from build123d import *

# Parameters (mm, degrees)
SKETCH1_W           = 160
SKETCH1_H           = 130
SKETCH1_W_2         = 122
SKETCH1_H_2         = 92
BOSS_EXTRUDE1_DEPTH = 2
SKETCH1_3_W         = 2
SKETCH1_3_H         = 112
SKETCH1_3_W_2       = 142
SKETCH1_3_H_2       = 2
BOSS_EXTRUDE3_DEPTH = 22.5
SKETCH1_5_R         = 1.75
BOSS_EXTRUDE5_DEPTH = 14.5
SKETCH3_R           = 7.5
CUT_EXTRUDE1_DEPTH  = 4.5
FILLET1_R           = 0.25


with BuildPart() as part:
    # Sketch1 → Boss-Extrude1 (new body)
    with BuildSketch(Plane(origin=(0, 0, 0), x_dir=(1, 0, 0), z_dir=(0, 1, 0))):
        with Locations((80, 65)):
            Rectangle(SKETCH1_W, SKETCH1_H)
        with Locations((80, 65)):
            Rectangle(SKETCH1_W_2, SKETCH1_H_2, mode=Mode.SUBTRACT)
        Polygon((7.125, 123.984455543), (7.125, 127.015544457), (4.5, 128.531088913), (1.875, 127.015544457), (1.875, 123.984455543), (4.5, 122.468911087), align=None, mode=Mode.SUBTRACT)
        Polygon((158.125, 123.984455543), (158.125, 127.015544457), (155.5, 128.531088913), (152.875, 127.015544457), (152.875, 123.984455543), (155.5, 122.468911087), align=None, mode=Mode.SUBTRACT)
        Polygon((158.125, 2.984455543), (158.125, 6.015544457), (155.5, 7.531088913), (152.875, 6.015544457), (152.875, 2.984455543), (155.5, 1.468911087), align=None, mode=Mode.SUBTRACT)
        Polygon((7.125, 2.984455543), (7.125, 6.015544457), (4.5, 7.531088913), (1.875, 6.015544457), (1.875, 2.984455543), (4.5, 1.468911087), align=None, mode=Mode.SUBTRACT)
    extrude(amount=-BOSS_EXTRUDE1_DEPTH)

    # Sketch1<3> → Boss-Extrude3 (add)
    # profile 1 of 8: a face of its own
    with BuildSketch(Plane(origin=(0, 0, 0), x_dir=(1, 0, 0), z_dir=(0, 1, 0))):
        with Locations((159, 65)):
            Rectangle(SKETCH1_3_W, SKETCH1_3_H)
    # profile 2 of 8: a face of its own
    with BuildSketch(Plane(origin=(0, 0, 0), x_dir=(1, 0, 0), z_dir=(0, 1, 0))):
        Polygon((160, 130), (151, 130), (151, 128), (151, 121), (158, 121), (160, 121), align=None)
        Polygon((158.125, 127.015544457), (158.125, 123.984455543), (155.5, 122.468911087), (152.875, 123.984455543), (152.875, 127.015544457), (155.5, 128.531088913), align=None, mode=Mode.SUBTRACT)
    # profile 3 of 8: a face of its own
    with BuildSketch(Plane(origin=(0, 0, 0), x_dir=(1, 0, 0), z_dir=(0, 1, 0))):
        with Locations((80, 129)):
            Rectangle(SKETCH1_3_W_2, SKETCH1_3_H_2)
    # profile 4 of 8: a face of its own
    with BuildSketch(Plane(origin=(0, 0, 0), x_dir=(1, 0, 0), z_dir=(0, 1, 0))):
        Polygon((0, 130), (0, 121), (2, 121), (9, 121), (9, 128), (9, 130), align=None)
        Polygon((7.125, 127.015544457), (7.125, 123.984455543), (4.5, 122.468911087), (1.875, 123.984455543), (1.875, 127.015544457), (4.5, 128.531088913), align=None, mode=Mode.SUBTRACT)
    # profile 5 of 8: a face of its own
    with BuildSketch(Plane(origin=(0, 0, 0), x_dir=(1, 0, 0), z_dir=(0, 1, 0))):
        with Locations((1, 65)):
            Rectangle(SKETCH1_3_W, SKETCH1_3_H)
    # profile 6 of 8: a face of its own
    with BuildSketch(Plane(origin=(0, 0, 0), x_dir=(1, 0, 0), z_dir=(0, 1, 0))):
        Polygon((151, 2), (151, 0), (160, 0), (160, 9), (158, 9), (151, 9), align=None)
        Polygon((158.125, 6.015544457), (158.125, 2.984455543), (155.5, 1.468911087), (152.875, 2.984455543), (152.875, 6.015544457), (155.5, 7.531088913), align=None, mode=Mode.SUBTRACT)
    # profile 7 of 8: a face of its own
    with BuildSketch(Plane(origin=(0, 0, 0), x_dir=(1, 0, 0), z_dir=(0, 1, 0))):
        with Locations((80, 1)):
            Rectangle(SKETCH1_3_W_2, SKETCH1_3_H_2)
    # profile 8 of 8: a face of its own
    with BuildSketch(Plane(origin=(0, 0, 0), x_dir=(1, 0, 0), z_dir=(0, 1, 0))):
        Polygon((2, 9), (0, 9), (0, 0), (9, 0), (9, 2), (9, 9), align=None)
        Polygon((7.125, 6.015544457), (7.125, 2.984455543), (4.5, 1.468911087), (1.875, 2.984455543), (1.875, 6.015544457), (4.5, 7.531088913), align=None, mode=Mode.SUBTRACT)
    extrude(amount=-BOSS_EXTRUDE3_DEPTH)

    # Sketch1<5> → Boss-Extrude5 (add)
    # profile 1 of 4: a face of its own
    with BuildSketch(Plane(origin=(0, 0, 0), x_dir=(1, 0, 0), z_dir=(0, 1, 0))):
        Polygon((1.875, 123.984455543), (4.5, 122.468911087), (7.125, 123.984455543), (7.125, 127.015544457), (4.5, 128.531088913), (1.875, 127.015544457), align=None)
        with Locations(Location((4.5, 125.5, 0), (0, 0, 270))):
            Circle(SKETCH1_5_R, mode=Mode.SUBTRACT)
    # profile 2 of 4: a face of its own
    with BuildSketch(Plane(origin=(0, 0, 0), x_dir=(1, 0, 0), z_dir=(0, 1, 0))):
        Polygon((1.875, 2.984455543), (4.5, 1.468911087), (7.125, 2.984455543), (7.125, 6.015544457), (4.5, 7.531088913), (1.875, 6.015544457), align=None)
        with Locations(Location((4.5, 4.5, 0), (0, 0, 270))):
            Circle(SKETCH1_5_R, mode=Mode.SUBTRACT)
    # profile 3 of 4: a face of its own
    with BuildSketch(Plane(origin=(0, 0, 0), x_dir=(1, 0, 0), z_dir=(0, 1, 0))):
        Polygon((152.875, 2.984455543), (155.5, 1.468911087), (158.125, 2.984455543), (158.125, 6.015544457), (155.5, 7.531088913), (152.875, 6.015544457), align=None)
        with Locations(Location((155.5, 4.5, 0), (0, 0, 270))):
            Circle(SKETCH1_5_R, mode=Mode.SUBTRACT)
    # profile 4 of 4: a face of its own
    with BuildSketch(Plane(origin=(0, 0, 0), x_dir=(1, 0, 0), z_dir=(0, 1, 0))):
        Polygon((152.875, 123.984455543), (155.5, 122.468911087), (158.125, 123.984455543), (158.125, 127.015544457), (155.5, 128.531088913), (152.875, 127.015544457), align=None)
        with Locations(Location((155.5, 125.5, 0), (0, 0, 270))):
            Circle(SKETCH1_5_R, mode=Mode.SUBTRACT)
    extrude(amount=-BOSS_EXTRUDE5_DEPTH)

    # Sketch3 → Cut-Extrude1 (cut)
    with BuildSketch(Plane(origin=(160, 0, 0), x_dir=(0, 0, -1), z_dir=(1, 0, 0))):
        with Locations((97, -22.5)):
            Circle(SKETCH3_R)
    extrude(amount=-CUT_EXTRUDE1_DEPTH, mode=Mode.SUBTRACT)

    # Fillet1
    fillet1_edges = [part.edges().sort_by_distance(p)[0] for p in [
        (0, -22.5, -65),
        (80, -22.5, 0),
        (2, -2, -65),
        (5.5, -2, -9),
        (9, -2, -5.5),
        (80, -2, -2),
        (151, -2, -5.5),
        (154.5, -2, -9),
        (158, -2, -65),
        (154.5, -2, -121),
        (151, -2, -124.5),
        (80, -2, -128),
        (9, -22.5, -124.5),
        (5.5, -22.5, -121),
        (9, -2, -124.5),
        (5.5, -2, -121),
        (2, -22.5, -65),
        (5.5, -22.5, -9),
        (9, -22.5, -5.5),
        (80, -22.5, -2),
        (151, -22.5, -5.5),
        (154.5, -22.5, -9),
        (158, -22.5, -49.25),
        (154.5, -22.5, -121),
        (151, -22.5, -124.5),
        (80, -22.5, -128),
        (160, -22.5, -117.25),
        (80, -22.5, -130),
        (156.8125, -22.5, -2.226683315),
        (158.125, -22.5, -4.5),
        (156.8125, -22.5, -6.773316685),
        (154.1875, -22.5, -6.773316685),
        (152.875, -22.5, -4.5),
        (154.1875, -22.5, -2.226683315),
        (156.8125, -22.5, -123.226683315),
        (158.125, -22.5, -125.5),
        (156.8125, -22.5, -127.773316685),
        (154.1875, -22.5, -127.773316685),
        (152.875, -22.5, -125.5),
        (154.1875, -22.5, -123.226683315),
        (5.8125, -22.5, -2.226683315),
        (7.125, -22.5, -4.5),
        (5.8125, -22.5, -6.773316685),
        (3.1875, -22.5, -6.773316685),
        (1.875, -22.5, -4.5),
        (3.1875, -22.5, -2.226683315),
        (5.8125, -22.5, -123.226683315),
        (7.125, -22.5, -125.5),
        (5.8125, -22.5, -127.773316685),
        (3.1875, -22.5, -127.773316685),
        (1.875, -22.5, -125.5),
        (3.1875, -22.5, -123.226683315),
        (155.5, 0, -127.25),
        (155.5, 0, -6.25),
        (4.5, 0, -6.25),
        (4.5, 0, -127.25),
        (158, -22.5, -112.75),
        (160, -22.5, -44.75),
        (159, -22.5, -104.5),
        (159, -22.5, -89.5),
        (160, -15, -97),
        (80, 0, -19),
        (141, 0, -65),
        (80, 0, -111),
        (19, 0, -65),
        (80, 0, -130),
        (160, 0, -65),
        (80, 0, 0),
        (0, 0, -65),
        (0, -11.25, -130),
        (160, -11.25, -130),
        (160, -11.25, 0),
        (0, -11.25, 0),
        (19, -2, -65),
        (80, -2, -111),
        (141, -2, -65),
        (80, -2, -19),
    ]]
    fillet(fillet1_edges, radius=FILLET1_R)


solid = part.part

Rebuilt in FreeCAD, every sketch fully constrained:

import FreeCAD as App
import Part
import Sketcher
Q = App.Units.Quantity


def edges_at(feature, points):
    """Names of the edges that pass closest to the given points."""
    edges = feature.Shape.Edges
    near = lambda p: min(range(len(edges)), key=lambda i: edges[i].distToShape(Part.Vertex(*p))[0])
    return sorted({f"Edge{near(p) + 1}" for p in points})


def add_polygon(sketch, points):
    """Adds a closed chain of lines whose ends are joined by coincident constraints."""
    first, n = sketch.GeometryCount, len(points)
    for a, b in zip(points, points[1:] + points[:1]):
        sketch.addGeometry(Part.LineSegment(App.Vector(*a, 0), App.Vector(*b, 0)), False)
    for i in range(n):
        sketch.addConstraint(Sketcher.Constraint("Coincident", first + i, 2, first + (i + 1) % n, 1))

doc = App.newDocument("Part")
body = doc.addObject("PartDesign::Body", "Body")

sketch1 = body.newObject("Sketcher::SketchObject", "Sketch")
sketch1.AttachmentSupport = (doc.getObject("XZ_Plane"), [""])
sketch1.MapMode = "FlatFace"
add_polygon(sketch1, [(0, -130), (0, 0), (160, 0), (160, -130)])
add_polygon(sketch1, [(7.1, -6), (7.1, -3), (4.5, -1.5), (1.9, -3), (1.9, -6), (4.5, -7.5)])
add_polygon(sketch1, [(158.1, -6), (158.1, -3), (155.5, -1.5), (152.9, -3), (152.9, -6), (155.5, -7.5)])
add_polygon(sketch1, [(7.1, -127), (7.1, -124), (4.5, -122.5), (1.9, -124), (1.9, -127), (4.5, -128.5)])
add_polygon(sketch1, [(141, -19), (19, -19), (19, -111), (141, -111)])
add_polygon(sketch1, [(158.1, -127), (158.1, -124), (155.5, -122.5), (152.9, -124), (152.9, -127), (155.5, -128.5)])
sketch1.addConstraint([
    Sketcher.Constraint("Vertical", 0),
    Sketcher.Constraint("Horizontal", 1),
    Sketcher.Constraint("Vertical", 2),
    Sketcher.Constraint("Horizontal", 3),
    Sketcher.Constraint("Vertical", 4),
    Sketcher.Constraint("Vertical", 7),
    Sketcher.Constraint("Vertical", 10),
    Sketcher.Constraint("Vertical", 13),
    Sketcher.Constraint("Vertical", 16),
    Sketcher.Constraint("Vertical", 19),
    Sketcher.Constraint("Horizontal", 22),
    Sketcher.Constraint("Vertical", 23),
    Sketcher.Constraint("Horizontal", 24),
    Sketcher.Constraint("Vertical", 25),
    Sketcher.Constraint("Vertical", 26),
    Sketcher.Constraint("Vertical", 29),
    Sketcher.Constraint("Coincident", 0, 2, -1, 1),
    Sketcher.Constraint("Parallel", 5, 8),
    Sketcher.Constraint("Parallel", 6, 9),
    Sketcher.Constraint("Parallel", 8, 11),
    Sketcher.Constraint("Parallel", 9, 12),
    Sketcher.Constraint("Parallel", 11, 14),
    Sketcher.Constraint("Parallel", 12, 15),
    Sketcher.Constraint("Parallel", 14, 17),
    Sketcher.Constraint("Parallel", 15, 18),
    Sketcher.Constraint("Parallel", 17, 20),
    Sketcher.Constraint("Parallel", 18, 21),
    Sketcher.Constraint("Parallel", 20, 27),
    Sketcher.Constraint("Parallel", 21, 28),
    Sketcher.Constraint("Parallel", 27, 30),
    Sketcher.Constraint("Parallel", 28, 31),
    Sketcher.Constraint("Horizontal", 4, 2, 6, 2),
    Sketcher.Constraint("Horizontal", 7, 2, 9, 2),
    Sketcher.Constraint("Horizontal", 6, 2, 10, 2),
    Sketcher.Constraint("Horizontal", 5, 2, 11, 2),
    Sketcher.Constraint("Horizontal", 10, 2, 12, 2),
    Sketcher.Constraint("Horizontal", 9, 2, 13, 2),
    Sketcher.Constraint("Horizontal", 8, 2, 14, 2),
    Sketcher.Constraint("Horizontal", 16, 2, 18, 2),
    Sketcher.Constraint("Horizontal", 19, 2, 21, 2),
    Sketcher.Constraint("Horizontal", 18, 2, 26, 2),
    Sketcher.Constraint("Horizontal", 17, 2, 27, 2),
    Sketcher.Constraint("Horizontal", 26, 2, 28, 2),
    Sketcher.Constraint("Horizontal", 21, 2, 29, 2),
    Sketcher.Constraint("Horizontal", 20, 2, 30, 2),
    Sketcher.Constraint("Vertical", 5, 2, 8, 2),
    Sketcher.Constraint("Vertical", 9, 2, 16, 2),
    Sketcher.Constraint("Vertical", 8, 2, 17, 2),
    Sketcher.Constraint("Vertical", 15, 2, 26, 2),
    Sketcher.Constraint("Equal", 13, 16),
    Sketcher.Constraint("DistanceX", 1, 1, 1, 2, 160.0),
    Sketcher.Constraint("DistanceX", 22, 2, 22, 1, 122.0),
    Sketcher.Constraint("DistanceY", 0, 1, 0, 2, 130.0),
    Sketcher.Constraint("DistanceY", 23, 2, 23, 1, 92.0),
    Sketcher.Constraint("Angle", 5, Q("150 deg")),
    Sketcher.Constraint("DistanceX", -1, 1, 22, 2, 19.0),
    Sketcher.Constraint("DistanceY", 22, 2, -1, 1, 19.0),
    Sketcher.Constraint("DistanceX", 4, 2, 10, 2, 151.0),
    Sketcher.Constraint("DistanceY", 16, 2, 4, 2, 121.0),
    Sketcher.Constraint("DistanceX", -1, 1, 5, 2, 4.5),
    Sketcher.Constraint("DistanceX", 6, 2, 4, 2, 5.25),
    Sketcher.Constraint("DistanceY", 4, 1, 4, 2, 3.031089),
    Sketcher.Constraint("DistanceY", 5, 2, -1, 1, 1.468911),
])
pad1 = body.newObject("PartDesign::Pad", "Pad")
pad1.Profile = sketch1
pad1.Length = 2

sketch2 = body.newObject("Sketcher::SketchObject", "Sketch001")
sketch2.AttachmentSupport = (doc.getObject("XZ_Plane"), [""])
sketch2.MapMode = "FlatFace"
add_polygon(sketch2, [(160, -130), (0, -130), (0, 0), (160, 0)])
add_polygon(sketch2, [(158, -121), (158, -9), (151, -9), (151, -2), (9, -2), (9, -9), (2, -9), (2, -121), (9, -121), (9, -128), (151, -128), (151, -121)])
add_polygon(sketch2, [(158.1, -6), (158.1, -3), (155.5, -1.5), (152.9, -3), (152.9, -6), (155.5, -7.5)])
add_polygon(sketch2, [(158.1, -127), (158.1, -124), (155.5, -122.5), (152.9, -124), (152.9, -127), (155.5, -128.5)])
add_polygon(sketch2, [(7.1, -6), (7.1, -3), (4.5, -1.5), (1.9, -3), (1.9, -6), (4.5, -7.5)])
add_polygon(sketch2, [(7.1, -127), (7.1, -124), (4.5, -122.5), (1.9, -124), (1.9, -127), (4.5, -128.5)])
sketch2.addConstraint([
    Sketcher.Constraint("Horizontal", 0),
    Sketcher.Constraint("Vertical", 1),
    Sketcher.Constraint("Horizontal", 2),
    Sketcher.Constraint("Vertical", 3),
    Sketcher.Constraint("Vertical", 4),
    Sketcher.Constraint("Horizontal", 5),
    Sketcher.Constraint("Vertical", 6),
    Sketcher.Constraint("Horizontal", 7),
    Sketcher.Constraint("Vertical", 8),
    Sketcher.Constraint("Horizontal", 9),
    Sketcher.Constraint("Vertical", 10),
    Sketcher.Constraint("Horizontal", 11),
    Sketcher.Constraint("Vertical", 12),
    Sketcher.Constraint("Horizontal", 13),
    Sketcher.Constraint("Vertical", 14),
    Sketcher.Constraint("Horizontal", 15),
    Sketcher.Constraint("Vertical", 16),
    Sketcher.Constraint("Vertical", 19),
    Sketcher.Constraint("Vertical", 22),
    Sketcher.Constraint("Vertical", 25),
    Sketcher.Constraint("Vertical", 28),
    Sketcher.Constraint("Vertical", 31),
    Sketcher.Constraint("Vertical", 34),
    Sketcher.Constraint("Vertical", 37),
    Sketcher.Constraint("Coincident", 1, 2, -1, 1),
    Sketcher.Constraint("Parallel", 17, 20),
    Sketcher.Constraint("Parallel", 18, 21),
    Sketcher.Constraint("Parallel", 20, 23),
    Sketcher.Constraint("Parallel", 21, 24),
    Sketcher.Constraint("Parallel", 23, 26),
    Sketcher.Constraint("Parallel", 24, 27),
    Sketcher.Constraint("Parallel", 26, 29),
    Sketcher.Constraint("Parallel", 27, 30),
    Sketcher.Constraint("Parallel", 29, 32),
    Sketcher.Constraint("Parallel", 30, 33),
    Sketcher.Constraint("Parallel", 32, 35),
    Sketcher.Constraint("Parallel", 33, 36),
    Sketcher.Constraint("Parallel", 35, 38),
    Sketcher.Constraint("Parallel", 36, 39),
    Sketcher.Constraint("Horizontal", 5, 2, 8, 2),
    Sketcher.Constraint("Horizontal", 11, 2, 14, 2),
    Sketcher.Constraint("Horizontal", 16, 2, 18, 2),
    Sketcher.Constraint("Horizontal", 19, 2, 21, 2),
    Sketcher.Constraint("Horizontal", 22, 2, 24, 2),
    Sketcher.Constraint("Horizontal", 25, 2, 27, 2),
    Sketcher.Constraint("Horizontal", 18, 2, 28, 2),
    Sketcher.Constraint("Horizontal", 17, 2, 29, 2),
    Sketcher.Constraint("Horizontal", 28, 2, 30, 2),
    Sketcher.Constraint("Horizontal", 21, 2, 31, 2),
    Sketcher.Constraint("Horizontal", 20, 2, 32, 2),
    Sketcher.Constraint("Horizontal", 24, 2, 34, 2),
    Sketcher.Constraint("Horizontal", 23, 2, 35, 2),
    Sketcher.Constraint("Horizontal", 34, 2, 36, 2),
    Sketcher.Constraint("Horizontal", 27, 2, 37, 2),
    Sketcher.Constraint("Horizontal", 26, 2, 38, 2),
    Sketcher.Constraint("Vertical", 8, 2, 11, 2),
    Sketcher.Constraint("Vertical", 6, 2, 13, 2),
    Sketcher.Constraint("Vertical", 17, 2, 20, 2),
    Sketcher.Constraint("Vertical", 21, 2, 22, 2),
    Sketcher.Constraint("Vertical", 20, 2, 23, 2),
    Sketcher.Constraint("Vertical", 33, 2, 34, 2),
    Sketcher.Constraint("Equal", 5, 9),
    Sketcher.Constraint("Equal", 15, 6),
    Sketcher.Constraint("Equal", 8, 12),
    Sketcher.Constraint("Equal", 19, 22),
    Sketcher.Constraint("DistanceX", 0, 2, 0, 1, 160.0),
    Sketcher.Constraint("DistanceX", 5, 2, 5, 1, 7.0),
    Sketcher.Constraint("DistanceX", 7, 2, 7, 1, 142.0),
    Sketcher.Constraint("DistanceY", 1, 1, 1, 2, 130.0),
    Sketcher.Constraint("DistanceY", 4, 1, 4, 2, 112.0),
    Sketcher.Constraint("Angle", 17, Q("150 deg")),
    Sketcher.Constraint("DistanceX", -1, 1, 4, 2, 158.0),
    Sketcher.Constraint("DistanceY", 4, 2, -1, 1, 9.0),
    Sketcher.Constraint("DistanceX", -1, 1, 17, 2, 155.5),
    Sketcher.Constraint("DistanceX", -1, 1, 29, 2, 4.5),
    Sketcher.Constraint("DistanceX", 18, 2, 16, 2, 5.25),
    Sketcher.Constraint("DistanceY", 16, 1, 16, 2, 3.031089),
    Sketcher.Constraint("DistanceY", 17, 2, -1, 1, 1.468911),
    Sketcher.Constraint("DistanceY", 23, 2, -1, 1, 122.468911),
])
pad2 = body.newObject("PartDesign::Pad", "Pad001")
pad2.Profile = sketch2
pad2.Length = 22.5

sketch3 = body.newObject("Sketcher::SketchObject", "Sketch002")
sketch3.AttachmentSupport = (doc.getObject("XZ_Plane"), [""])
sketch3.MapMode = "FlatFace"
add_polygon(sketch3, [(1.9, -124), (4.5, -122.5), (7.1, -124), (7.1, -127), (4.5, -128.5), (1.9, -127)])
sketch3.addGeometry(Part.Circle(App.Vector(4.5, -125.5, 0), App.Vector(0, 0, 1), 1.8), False)
add_polygon(sketch3, [(1.9, -3), (4.5, -1.5), (7.1, -3), (7.1, -6), (4.5, -7.5), (1.9, -6)])
sketch3.addGeometry(Part.Circle(App.Vector(4.5, -4.5, 0), App.Vector(0, 0, 1), 1.8), False)
add_polygon(sketch3, [(152.9, -3), (155.5, -1.5), (158.1, -3), (158.1, -6), (155.5, -7.5), (152.9, -6)])
sketch3.addGeometry(Part.Circle(App.Vector(155.5, -4.5, 0), App.Vector(0, 0, 1), 1.8), False)
add_polygon(sketch3, [(152.9, -124), (155.5, -122.5), (158.1, -124), (158.1, -127), (155.5, -128.5), (152.9, -127)])
sketch3.addGeometry(Part.Circle(App.Vector(155.5, -125.5, 0), App.Vector(0, 0, 1), 1.8), False)
sketch3.addConstraint([
    Sketcher.Constraint("Vertical", 2),
    Sketcher.Constraint("Vertical", 5),
    Sketcher.Constraint("Vertical", 9),
    Sketcher.Constraint("Vertical", 12),
    Sketcher.Constraint("Vertical", 16),
    Sketcher.Constraint("Vertical", 19),
    Sketcher.Constraint("Vertical", 23),
    Sketcher.Constraint("Vertical", 26),
    Sketcher.Constraint("Equal", 6, 13),
    Sketcher.Constraint("Equal", 13, 20),
    Sketcher.Constraint("Equal", 20, 27),
    Sketcher.Constraint("Parallel", 0, 3),
    Sketcher.Constraint("Parallel", 1, 4),
    Sketcher.Constraint("Parallel", 3, 7),
    Sketcher.Constraint("Parallel", 4, 8),
    Sketcher.Constraint("Parallel", 7, 10),
    Sketcher.Constraint("Parallel", 8, 11),
    Sketcher.Constraint("Parallel", 10, 14),
    Sketcher.Constraint("Parallel", 11, 15),
    Sketcher.Constraint("Parallel", 14, 17),
    Sketcher.Constraint("Parallel", 15, 18),
    Sketcher.Constraint("Parallel", 17, 21),
    Sketcher.Constraint("Parallel", 18, 22),
    Sketcher.Constraint("Parallel", 21, 24),
    Sketcher.Constraint("Parallel", 22, 25),
    Sketcher.Constraint("Horizontal", 13, 3, 20, 3),
    Sketcher.Constraint("Horizontal", 6, 3, 27, 3),
    Sketcher.Constraint("Horizontal", 2, 2, 4, 2),
    Sketcher.Constraint("Horizontal", 1, 2, 5, 2),
    Sketcher.Constraint("Horizontal", 9, 2, 11, 2),
    Sketcher.Constraint("Horizontal", 8, 2, 12, 2),
    Sketcher.Constraint("Horizontal", 7, 2, 14, 2),
    Sketcher.Constraint("Horizontal", 12, 2, 15, 2),
    Sketcher.Constraint("Horizontal", 11, 2, 16, 2),
    Sketcher.Constraint("Horizontal", 10, 2, 17, 2),
    Sketcher.Constraint("Horizontal", 16, 2, 18, 2),
    Sketcher.Constraint("Horizontal", 0, 2, 21, 2),
    Sketcher.Constraint("Horizontal", 5, 2, 22, 2),
    Sketcher.Constraint("Horizontal", 4, 2, 23, 2),
    Sketcher.Constraint("Horizontal", 3, 2, 24, 2),
    Sketcher.Constraint("Horizontal", 23, 2, 25, 2),
    Sketcher.Constraint("Vertical", 6, 3, 13, 3),
    Sketcher.Constraint("Vertical", 20, 3, 27, 3),
    Sketcher.Constraint("Vertical", 13, 3, 0, 2),
    Sketcher.Constraint("Vertical", 0, 2, 3, 2),
    Sketcher.Constraint("Vertical", 3, 2, 7, 2),
    Sketcher.Constraint("Vertical", 2, 2, 8, 2),
    Sketcher.Constraint("Vertical", 27, 3, 14, 2),
    Sketcher.Constraint("Vertical", 17, 2, 21, 2),
    Sketcher.Constraint("Equal", 5, 9),
    Sketcher.Constraint("Diameter", 6, 3.5),
    Sketcher.Constraint("Angle", 0, Q("30 deg")),
    Sketcher.Constraint("DistanceY", 6, 3, 13, 3, 121.0),
    Sketcher.Constraint("DistanceX", 13, 3, 20, 3, 151.0),
    Sketcher.Constraint("DistanceY", 0, 2, 7, 2, 121.0),
    Sketcher.Constraint("DistanceX", -1, 1, 6, 3, 4.5),
    Sketcher.Constraint("DistanceY", 6, 3, -1, 1, 125.5),
    Sketcher.Constraint("DistanceX", 4, 2, 2, 2, 5.25),
    Sketcher.Constraint("DistanceY", 2, 2, 2, 1, 3.031089),
    Sketcher.Constraint("DistanceY", 0, 2, -1, 1, 122.468911),
])
pad3 = body.newObject("PartDesign::Pad", "Pad002")
pad3.Profile = sketch3
pad3.Length = 14.5

sketch4 = body.newObject("Sketcher::SketchObject", "Sketch003")
sketch4.AttachmentSupport = (doc.getObject("YZ_Plane"), [""])
sketch4.MapMode = "FlatFace"
sketch4.AttachmentOffset = App.Placement(App.Vector(0, 0, 160), App.Rotation())
sketch4.addGeometry(Part.Circle(App.Vector(-22, -97, 0), App.Vector(0, 0, 1), 8), False)
sketch4.addConstraint([
    Sketcher.Constraint("Diameter", 0, 15.0),
    Sketcher.Constraint("DistanceY", 0, 3, -1, 1, 97.0),
    Sketcher.Constraint("DistanceX", 0, 3, -1, 1, 22.5),
])
pocket1 = body.newObject("PartDesign::Pocket", "Pocket")
pocket1.Profile = sketch4
pocket1.Length = 4.5
doc.recompute()

fillet = body.newObject("PartDesign::Fillet", "Fillet")
fillet.Base = (pocket1, edges_at(pocket1, [
    (0, -22.5, -65),
    (80, -22.5, 0),
    (2, -2, -65),
    (5.5, -2, -9),
    (9, -2, -5.5),
    (80, -2, -2),
    (151, -2, -5.5),
    (154.5, -2, -9),
    (158, -2, -65),
    (154.5, -2, -121),
    (151, -2, -124.5),
    (80, -2, -128),
    (9, -22.5, -124.5),
    (5.5, -22.5, -121),
    (9, -2, -124.5),
    (5.5, -2, -121),
    (2, -22.5, -65),
    (5.5, -22.5, -9),
    (9, -22.5, -5.5),
    (80, -22.5, -2),
    (151, -22.5, -5.5),
    (154.5, -22.5, -9),
    (158, -22.5, -49.25),
    (154.5, -22.5, -121),
    (151, -22.5, -124.5),
    (80, -22.5, -128),
    (160, -22.5, -117.25),
    (80, -22.5, -130),
    (156.812, -22.5, -2.227),
    (158.125, -22.5, -4.5),
    (156.812, -22.5, -6.773),
    (154.188, -22.5, -6.773),
    (152.875, -22.5, -4.5),
    (154.188, -22.5, -2.227),
    (156.812, -22.5, -123.227),
    (158.125, -22.5, -125.5),
    (156.812, -22.5, -127.773),
    (154.188, -22.5, -127.773),
    (152.875, -22.5, -125.5),
    (154.188, -22.5, -123.227),
    (5.812, -22.5, -2.227),
    (7.125, -22.5, -4.5),
    (5.812, -22.5, -6.773),
    (3.188, -22.5, -6.773),
    (1.875, -22.5, -4.5),
    (3.188, -22.5, -2.227),
    (5.812, -22.5, -123.227),
    (7.125, -22.5, -125.5),
    (5.812, -22.5, -127.773),
    (3.188, -22.5, -127.773),
    (1.875, -22.5, -125.5),
    (3.188, -22.5, -123.227),
    (155.5, 0, -127.25),
    (155.5, 0, -6.25),
    (4.5, 0, -6.25),
    (4.5, 0, -127.25),
    (158, -22.5, -112.75),
    (160, -22.5, -44.75),
    (159, -22.5, -104.5),
    (159, -22.5, -89.5),
    (160, -15, -97),
    (80, 0, -19),
    (141, 0, -65),
    (80, 0, -111),
    (19, 0, -65),
    (80, 0, -130),
    (160, 0, -65),
    (80, 0, 0),
    (0, 0, -65),
    (0, -11.25, -130),
    (160, -11.25, -130),
    (160, -11.25, 0),
    (0, -11.25, 0),
    (19, -2, -65),
    (80, -2, -111),
    (141, -2, -65),
    (80, -2, -19),
]))
fillet.Radius = 0.25

doc.recompute()
